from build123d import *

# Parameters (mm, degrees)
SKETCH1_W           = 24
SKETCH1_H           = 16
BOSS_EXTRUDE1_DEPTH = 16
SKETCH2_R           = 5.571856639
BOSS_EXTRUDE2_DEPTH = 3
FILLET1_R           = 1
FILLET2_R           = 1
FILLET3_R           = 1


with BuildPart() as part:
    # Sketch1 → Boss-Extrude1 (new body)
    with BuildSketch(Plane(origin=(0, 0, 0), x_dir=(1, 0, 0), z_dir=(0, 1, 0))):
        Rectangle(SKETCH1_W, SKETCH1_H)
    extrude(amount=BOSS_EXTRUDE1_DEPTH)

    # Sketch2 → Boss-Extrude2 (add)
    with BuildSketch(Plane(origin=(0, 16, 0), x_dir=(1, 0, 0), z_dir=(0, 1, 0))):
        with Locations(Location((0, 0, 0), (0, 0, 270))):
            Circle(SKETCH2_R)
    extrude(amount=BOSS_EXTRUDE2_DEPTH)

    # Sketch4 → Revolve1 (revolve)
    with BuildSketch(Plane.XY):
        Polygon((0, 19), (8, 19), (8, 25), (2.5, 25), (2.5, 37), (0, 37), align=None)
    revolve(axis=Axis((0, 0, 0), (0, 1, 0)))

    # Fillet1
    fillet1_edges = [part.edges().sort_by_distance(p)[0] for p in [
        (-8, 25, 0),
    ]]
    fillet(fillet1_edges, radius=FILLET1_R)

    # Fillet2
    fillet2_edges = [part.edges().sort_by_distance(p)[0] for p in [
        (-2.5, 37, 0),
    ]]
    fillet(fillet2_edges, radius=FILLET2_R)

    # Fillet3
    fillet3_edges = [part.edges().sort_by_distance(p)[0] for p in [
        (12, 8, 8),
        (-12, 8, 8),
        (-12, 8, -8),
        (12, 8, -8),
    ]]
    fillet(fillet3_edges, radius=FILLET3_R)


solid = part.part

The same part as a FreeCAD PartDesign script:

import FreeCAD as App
import Part
import Sketcher
from FreeCAD import Vector


def edges_at(feature, points):
    """Names of the edges that pass closest to the given points."""
    edges = feature.Shape.Edges
    near = lambda p: min(range(len(edges)), key=lambda i: edges[i].distToShape(Part.Vertex(*p))[0])
    return sorted({f"Edge{near(p) + 1}" for p in points})


def add_polygon(sketch, points):
    """Adds a closed chain of lines whose ends are joined by coincident constraints."""
    first, n = sketch.GeometryCount, len(points)
    for a, b in zip(points, points[1:] + points[:1]):
        sketch.addGeometry(Part.LineSegment(App.Vector(*a, 0), App.Vector(*b, 0)), False)
    for i in range(n):
        sketch.addConstraint(Sketcher.Constraint("Coincident", first + i, 2, first + (i + 1) % n, 1))

doc = App.newDocument("Part")
body = doc.addObject("PartDesign::Body", "Body")

sketch1 = body.newObject("Sketcher::SketchObject", "Sketch")
sketch1.AttachmentSupport = (doc.getObject("XZ_Plane"), [""])
sketch1.MapMode = "FlatFace"
add_polygon(sketch1, [(-12, -8), (-12, 8), (12, 8), (12, -8)])
sketch1.addConstraint([
    Sketcher.Constraint("Vertical", 0),
    Sketcher.Constraint("Horizontal", 1),
    Sketcher.Constraint("Vertical", 2),
    Sketcher.Constraint("Horizontal", 3),
    Sketcher.Constraint("Symmetric", 0, 2, 2, 2, -1, 1),
    Sketcher.Constraint("DistanceX", 1, 1, 1, 2, 24.0),
    Sketcher.Constraint("DistanceY", 0, 1, 0, 2, 16.0),
])
pad1 = body.newObject("PartDesign::Pad", "Pad")
pad1.Profile = sketch1
pad1.Length = 16
pad1.Reversed = True

sketch2 = body.newObject("Sketcher::SketchObject", "Sketch001")
sketch2.AttachmentSupport = (doc.getObject("XZ_Plane"), [""])
sketch2.MapMode = "FlatFace"
sketch2.AttachmentOffset = App.Placement(Vector(0, 0, -16), App.Rotation())
sketch2.addGeometry(Part.Circle(Vector(0, 0, 0), Vector(0, 0, 1), 6), False)
sketch2.addConstraint([
    Sketcher.Constraint("Coincident", 0, 3, -1, 1),
    Sketcher.Constraint("Diameter", 0, 11.143713),
])
pad2 = body.newObject("PartDesign::Pad", "Pad001")
pad2.Profile = sketch2
pad2.Length = 3
pad2.Reversed = True

sketch3 = body.newObject("Sketcher::SketchObject", "Sketch002")
sketch3.AttachmentSupport = (doc.getObject("XY_Plane"), [""])
sketch3.MapMode = "FlatFace"
add_polygon(sketch3, [(0, 19), (8, 19), (8, 25), (2.5, 25), (2.5, 37), (0, 37)])
sketch3.addConstraint([
    Sketcher.Constraint("Horizontal", 0),
    Sketcher.Constraint("Vertical", 1),
    Sketcher.Constraint("Horizontal", 2),
    Sketcher.Constraint("Vertical", 3),
    Sketcher.Constraint("Horizontal", 4),
    Sketcher.Constraint("Vertical", 5),
    Sketcher.Constraint("PointOnObject", 4, 2, -2),
    Sketcher.Constraint("DistanceX", 0, 1, 0, 2, 8.0),
    Sketcher.Constraint("DistanceY", 1, 1, 1, 2, 6.0),
    Sketcher.Constraint("DistanceY", 3, 1, 3, 2, 12.0),
    Sketcher.Constraint("DistanceX", 2, 2, 2, 1, 5.5),
    Sketcher.Constraint("DistanceY", -1, 1, 0, 2, 19.0),
])
revolution = body.newObject("PartDesign::Revolution", "Revolution")
revolution.Profile = sketch3
revolution.ReferenceAxis = (sketch3, ["V_Axis"])
revolution.Angle = 360
doc.recompute()

fillet = body.newObject("PartDesign::Fillet", "Fillet")
fillet.Base = (revolution, edges_at(revolution, [(-8, 25, 0)]))
fillet.Radius = 1
doc.recompute()

fillet2 = body.newObject("PartDesign::Fillet", "Fillet001")
fillet2.Base = (fillet, edges_at(fillet, [(-2.5, 37, 0)]))
fillet2.Radius = 1
doc.recompute()

fillet3 = body.newObject("PartDesign::Fillet", "Fillet002")
fillet3.Base = (fillet2, edges_at(fillet2, [
    (12, 8, 8),
    (-12, 8, 8),
    (-12, 8, -8),
    (12, 8, -8),
]))
fillet3.Radius = 1

doc.recompute()
